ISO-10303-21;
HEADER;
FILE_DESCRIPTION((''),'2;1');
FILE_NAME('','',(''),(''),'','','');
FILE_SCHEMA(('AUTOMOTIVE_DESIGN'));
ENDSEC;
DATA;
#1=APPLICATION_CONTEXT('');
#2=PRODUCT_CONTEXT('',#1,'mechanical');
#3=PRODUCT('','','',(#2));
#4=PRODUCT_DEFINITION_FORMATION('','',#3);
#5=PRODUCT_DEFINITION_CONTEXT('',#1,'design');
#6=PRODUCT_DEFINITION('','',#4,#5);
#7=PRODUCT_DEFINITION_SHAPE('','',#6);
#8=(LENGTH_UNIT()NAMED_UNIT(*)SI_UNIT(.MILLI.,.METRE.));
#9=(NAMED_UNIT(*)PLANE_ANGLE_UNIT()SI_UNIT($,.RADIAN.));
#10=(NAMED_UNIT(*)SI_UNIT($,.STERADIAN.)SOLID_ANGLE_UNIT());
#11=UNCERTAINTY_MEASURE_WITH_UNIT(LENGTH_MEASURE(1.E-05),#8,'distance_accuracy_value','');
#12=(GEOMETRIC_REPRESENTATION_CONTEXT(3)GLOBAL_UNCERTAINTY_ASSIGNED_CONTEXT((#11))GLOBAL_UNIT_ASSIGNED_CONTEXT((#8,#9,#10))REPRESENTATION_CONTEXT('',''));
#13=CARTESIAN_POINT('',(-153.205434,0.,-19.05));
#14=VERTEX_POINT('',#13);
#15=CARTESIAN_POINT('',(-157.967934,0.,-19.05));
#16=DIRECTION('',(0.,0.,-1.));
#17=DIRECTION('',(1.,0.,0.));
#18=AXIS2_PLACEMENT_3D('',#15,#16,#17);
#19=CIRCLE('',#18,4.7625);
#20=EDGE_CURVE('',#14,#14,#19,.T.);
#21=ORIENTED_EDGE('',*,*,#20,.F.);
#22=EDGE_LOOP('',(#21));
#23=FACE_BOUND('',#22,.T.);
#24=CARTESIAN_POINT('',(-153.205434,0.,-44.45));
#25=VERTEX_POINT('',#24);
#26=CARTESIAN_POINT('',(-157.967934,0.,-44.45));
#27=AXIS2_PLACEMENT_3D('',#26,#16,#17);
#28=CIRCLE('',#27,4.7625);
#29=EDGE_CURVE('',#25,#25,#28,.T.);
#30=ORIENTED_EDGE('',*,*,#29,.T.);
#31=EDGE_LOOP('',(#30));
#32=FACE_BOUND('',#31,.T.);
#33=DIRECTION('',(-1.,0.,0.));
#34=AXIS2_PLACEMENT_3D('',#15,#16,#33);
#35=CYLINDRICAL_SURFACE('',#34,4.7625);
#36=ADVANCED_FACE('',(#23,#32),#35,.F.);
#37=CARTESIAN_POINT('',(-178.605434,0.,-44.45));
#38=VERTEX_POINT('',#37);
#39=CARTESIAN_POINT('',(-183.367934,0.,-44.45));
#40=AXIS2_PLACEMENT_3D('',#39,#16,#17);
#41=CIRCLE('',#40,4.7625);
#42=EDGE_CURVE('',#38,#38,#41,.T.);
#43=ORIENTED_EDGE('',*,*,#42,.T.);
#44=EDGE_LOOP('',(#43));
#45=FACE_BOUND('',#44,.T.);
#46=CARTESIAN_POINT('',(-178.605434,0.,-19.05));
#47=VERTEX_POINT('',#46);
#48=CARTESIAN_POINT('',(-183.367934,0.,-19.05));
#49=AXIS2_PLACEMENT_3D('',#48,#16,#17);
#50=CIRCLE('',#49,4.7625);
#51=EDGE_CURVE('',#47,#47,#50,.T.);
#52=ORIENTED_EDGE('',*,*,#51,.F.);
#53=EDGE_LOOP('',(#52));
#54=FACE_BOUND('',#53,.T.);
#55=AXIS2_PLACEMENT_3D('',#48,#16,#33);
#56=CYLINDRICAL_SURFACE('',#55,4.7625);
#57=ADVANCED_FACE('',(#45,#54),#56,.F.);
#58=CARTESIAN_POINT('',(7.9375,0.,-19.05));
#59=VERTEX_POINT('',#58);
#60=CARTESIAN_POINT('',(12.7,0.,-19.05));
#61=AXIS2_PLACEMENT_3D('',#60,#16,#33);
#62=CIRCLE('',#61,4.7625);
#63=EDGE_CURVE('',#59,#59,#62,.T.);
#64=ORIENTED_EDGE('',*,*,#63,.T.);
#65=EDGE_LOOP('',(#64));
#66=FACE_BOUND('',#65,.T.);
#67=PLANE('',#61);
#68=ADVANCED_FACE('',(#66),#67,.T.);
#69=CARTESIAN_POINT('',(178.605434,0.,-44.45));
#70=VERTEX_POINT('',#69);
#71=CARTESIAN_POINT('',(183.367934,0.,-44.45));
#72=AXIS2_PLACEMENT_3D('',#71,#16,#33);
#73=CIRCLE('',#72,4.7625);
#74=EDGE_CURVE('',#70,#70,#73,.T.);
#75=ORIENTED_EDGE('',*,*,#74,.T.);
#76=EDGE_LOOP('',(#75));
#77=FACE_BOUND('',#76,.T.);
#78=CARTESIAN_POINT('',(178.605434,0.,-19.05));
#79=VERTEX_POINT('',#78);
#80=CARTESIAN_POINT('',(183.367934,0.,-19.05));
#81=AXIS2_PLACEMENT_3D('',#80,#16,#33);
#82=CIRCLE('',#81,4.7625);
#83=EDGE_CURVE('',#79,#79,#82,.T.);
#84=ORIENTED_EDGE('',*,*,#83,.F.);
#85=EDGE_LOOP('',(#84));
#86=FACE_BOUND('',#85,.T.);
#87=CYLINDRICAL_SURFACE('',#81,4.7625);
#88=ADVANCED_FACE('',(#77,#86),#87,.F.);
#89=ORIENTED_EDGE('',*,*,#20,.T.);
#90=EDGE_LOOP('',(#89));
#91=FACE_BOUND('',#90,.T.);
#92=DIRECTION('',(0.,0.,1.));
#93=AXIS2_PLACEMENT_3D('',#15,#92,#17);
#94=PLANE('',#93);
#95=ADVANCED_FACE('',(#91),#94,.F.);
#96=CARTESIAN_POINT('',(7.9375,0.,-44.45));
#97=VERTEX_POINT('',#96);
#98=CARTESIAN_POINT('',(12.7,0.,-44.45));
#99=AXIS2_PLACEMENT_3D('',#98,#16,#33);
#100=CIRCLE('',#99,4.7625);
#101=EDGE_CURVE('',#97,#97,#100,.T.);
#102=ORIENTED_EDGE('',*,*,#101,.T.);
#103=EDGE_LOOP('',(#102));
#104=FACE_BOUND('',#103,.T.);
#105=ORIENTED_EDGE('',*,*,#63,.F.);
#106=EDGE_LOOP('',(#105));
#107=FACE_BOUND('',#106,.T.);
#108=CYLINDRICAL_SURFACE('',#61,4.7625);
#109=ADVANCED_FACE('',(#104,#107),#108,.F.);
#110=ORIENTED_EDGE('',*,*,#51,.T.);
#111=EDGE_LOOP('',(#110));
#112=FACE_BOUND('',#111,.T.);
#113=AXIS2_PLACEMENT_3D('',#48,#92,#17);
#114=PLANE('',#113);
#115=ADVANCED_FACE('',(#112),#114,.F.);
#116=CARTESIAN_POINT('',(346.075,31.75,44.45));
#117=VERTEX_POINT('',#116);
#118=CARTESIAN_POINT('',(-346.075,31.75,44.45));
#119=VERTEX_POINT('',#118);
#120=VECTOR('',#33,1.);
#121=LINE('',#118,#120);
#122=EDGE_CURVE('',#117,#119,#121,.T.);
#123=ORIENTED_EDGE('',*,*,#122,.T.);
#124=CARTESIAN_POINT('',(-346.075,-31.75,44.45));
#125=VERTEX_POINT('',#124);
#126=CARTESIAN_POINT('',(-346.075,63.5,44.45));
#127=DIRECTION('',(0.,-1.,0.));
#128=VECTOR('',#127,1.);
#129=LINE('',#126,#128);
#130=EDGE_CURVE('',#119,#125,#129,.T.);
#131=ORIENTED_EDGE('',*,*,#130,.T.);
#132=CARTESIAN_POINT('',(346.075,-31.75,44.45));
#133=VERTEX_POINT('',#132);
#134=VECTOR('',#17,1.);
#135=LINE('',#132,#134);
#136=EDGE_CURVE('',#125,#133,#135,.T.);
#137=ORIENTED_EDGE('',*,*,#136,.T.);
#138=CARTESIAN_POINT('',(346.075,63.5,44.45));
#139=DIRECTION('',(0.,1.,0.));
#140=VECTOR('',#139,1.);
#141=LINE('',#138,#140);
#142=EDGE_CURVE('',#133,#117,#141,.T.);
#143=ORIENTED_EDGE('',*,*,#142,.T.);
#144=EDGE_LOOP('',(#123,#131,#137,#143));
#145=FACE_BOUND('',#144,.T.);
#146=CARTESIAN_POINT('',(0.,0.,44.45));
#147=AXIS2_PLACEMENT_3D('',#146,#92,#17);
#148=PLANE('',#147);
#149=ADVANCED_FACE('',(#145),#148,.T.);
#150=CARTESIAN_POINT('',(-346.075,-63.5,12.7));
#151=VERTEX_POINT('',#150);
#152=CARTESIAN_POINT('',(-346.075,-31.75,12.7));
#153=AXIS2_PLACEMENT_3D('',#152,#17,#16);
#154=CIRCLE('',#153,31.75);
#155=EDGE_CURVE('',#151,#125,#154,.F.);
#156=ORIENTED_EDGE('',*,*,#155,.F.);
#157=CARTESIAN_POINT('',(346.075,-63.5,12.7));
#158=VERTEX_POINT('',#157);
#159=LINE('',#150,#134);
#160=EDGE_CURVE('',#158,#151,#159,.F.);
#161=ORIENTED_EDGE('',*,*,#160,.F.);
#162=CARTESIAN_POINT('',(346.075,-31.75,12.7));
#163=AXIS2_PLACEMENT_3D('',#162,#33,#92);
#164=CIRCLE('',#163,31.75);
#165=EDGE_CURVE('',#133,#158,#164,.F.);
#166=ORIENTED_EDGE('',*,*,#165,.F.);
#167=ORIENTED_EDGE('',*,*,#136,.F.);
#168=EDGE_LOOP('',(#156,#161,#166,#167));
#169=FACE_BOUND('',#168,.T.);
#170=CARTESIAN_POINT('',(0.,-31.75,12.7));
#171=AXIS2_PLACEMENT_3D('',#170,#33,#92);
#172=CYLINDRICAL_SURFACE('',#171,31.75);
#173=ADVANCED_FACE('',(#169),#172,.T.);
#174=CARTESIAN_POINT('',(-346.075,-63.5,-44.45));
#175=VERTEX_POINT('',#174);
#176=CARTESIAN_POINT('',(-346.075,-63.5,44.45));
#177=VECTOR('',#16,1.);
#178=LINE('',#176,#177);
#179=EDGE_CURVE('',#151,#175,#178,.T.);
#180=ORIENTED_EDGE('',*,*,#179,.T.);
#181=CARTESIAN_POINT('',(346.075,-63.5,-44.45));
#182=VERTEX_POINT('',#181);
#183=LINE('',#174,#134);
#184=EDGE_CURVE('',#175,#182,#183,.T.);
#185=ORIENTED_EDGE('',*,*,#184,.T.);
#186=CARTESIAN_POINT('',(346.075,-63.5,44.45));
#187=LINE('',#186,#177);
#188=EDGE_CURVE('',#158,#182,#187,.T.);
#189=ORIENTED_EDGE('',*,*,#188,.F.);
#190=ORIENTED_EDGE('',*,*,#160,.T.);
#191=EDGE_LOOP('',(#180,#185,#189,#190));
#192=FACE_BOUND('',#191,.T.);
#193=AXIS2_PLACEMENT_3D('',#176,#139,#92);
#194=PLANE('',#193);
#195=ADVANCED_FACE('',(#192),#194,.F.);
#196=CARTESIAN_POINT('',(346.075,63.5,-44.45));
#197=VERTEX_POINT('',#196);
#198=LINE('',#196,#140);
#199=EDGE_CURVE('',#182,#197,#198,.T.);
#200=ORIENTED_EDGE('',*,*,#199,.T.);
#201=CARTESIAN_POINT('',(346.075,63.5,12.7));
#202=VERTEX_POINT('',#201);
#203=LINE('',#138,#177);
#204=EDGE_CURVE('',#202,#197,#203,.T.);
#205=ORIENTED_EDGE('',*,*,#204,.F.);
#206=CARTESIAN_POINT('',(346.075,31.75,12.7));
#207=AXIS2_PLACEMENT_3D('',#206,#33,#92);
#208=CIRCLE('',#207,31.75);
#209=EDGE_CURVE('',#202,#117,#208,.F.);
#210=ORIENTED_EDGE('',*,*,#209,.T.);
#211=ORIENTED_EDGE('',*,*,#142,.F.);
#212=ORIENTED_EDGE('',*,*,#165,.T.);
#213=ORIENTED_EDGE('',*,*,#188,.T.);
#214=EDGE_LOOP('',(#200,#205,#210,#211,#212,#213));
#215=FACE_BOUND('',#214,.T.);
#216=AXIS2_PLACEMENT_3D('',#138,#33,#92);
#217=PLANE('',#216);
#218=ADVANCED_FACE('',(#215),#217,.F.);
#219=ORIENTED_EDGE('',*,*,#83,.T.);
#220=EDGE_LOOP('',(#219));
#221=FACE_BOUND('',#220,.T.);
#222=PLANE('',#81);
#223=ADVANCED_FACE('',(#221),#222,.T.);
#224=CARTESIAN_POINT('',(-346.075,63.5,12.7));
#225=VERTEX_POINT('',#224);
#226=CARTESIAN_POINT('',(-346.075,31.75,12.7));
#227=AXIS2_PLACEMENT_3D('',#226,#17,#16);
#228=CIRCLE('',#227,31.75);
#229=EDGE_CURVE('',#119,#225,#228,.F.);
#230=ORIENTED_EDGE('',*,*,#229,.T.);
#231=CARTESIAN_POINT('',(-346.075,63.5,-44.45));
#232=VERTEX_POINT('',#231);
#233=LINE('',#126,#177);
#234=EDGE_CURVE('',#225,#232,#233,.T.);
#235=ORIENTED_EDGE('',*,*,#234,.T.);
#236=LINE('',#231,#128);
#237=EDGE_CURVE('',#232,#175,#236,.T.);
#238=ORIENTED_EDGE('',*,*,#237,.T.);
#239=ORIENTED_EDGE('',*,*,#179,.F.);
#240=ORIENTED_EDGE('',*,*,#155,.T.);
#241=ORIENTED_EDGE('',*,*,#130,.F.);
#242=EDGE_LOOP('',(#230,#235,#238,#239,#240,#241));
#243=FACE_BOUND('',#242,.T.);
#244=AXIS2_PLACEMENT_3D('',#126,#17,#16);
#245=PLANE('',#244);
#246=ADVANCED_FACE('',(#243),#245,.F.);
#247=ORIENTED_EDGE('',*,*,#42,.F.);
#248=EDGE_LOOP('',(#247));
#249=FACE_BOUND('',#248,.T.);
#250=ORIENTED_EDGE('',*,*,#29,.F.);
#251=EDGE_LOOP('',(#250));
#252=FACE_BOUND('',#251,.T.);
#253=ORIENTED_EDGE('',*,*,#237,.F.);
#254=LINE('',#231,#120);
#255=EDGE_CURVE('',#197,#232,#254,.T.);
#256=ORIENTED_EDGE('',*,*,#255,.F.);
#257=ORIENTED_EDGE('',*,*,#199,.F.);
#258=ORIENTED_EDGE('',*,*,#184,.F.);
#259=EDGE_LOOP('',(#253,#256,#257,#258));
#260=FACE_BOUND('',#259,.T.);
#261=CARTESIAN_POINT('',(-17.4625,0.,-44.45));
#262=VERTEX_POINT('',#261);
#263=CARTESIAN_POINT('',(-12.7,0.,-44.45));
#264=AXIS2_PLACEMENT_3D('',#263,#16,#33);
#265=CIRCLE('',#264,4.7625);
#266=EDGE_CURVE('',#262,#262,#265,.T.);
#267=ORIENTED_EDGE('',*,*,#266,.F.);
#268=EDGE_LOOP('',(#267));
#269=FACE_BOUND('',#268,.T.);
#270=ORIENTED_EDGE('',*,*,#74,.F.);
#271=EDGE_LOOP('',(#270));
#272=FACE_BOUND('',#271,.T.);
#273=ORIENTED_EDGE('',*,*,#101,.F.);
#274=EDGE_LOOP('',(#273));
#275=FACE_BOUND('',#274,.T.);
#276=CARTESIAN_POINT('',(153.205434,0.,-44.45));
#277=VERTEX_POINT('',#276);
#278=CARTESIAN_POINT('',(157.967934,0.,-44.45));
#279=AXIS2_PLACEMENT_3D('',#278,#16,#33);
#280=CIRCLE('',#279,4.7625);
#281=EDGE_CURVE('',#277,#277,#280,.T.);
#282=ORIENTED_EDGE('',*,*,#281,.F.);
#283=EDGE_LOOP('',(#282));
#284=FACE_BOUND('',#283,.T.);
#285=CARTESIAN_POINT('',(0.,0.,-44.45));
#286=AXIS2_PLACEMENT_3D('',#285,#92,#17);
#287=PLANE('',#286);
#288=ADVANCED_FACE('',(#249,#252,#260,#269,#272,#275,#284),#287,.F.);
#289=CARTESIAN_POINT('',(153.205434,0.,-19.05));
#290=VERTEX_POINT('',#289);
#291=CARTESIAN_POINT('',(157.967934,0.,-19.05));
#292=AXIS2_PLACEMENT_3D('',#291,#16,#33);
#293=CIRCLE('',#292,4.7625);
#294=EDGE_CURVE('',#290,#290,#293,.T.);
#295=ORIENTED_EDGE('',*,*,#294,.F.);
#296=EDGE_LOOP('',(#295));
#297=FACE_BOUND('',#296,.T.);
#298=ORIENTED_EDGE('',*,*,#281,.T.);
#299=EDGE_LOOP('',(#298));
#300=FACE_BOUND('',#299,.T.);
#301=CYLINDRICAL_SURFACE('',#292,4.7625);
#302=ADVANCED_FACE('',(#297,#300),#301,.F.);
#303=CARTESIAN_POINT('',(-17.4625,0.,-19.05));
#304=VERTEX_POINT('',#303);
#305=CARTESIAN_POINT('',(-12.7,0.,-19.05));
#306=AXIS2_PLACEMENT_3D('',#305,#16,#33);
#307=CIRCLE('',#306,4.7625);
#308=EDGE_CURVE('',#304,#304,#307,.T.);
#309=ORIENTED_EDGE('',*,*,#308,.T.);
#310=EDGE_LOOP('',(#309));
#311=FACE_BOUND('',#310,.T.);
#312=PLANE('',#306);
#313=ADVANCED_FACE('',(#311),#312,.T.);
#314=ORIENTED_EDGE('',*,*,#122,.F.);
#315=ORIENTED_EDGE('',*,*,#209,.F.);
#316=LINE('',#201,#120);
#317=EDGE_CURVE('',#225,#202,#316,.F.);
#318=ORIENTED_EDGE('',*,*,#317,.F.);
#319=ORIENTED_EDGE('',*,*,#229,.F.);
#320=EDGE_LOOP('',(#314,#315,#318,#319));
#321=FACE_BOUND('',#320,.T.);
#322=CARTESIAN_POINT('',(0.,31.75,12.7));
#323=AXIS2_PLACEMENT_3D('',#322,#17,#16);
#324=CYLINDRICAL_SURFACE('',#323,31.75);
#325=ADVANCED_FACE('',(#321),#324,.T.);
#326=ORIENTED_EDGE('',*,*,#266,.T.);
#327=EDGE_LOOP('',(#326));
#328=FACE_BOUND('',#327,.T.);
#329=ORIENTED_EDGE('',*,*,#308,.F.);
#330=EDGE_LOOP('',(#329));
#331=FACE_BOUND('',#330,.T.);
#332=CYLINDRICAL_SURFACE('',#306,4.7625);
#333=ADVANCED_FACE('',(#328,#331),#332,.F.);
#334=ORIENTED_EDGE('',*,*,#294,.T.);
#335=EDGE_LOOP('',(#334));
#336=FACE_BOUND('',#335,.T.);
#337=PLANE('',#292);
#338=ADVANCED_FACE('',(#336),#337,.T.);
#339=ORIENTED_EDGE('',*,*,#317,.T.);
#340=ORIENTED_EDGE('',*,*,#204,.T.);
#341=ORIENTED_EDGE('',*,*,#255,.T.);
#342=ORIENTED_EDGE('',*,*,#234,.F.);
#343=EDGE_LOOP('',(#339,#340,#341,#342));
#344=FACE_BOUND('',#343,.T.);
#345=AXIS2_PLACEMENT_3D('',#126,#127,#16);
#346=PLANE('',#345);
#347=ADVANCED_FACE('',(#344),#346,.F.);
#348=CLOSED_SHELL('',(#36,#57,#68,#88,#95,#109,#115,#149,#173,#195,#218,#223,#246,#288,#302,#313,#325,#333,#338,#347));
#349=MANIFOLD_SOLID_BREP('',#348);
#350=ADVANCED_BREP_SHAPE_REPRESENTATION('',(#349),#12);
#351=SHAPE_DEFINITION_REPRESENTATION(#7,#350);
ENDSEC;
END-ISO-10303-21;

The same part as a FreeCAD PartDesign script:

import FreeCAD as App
import Part
import Sketcher
from FreeCAD import Vector
Q = App.Units.Quantity


def edges_at(feature, points):
    """Names of the edges that pass closest to the given points."""
    edges = feature.Shape.Edges
    near = lambda p: min(range(len(edges)), key=lambda i: edges[i].distToShape(Part.Vertex(*p))[0])
    return sorted({f"Edge{near(p) + 1}" for p in points})


def add_polygon(sketch, points):
    """Adds a closed chain of lines whose ends are joined by coincident constraints."""
    first, n = sketch.GeometryCount, len(points)
    for a, b in zip(points, points[1:] + points[:1]):
        sketch.addGeometry(Part.LineSegment(App.Vector(*a, 0), App.Vector(*b, 0)), False)
    for i in range(n):
        sketch.addConstraint(Sketcher.Constraint("Coincident", first + i, 2, first + (i + 1) % n, 1))

doc = App.newDocument("Part")
body = doc.addObject("PartDesign::Body", "Body")

sketch1 = body.newObject("Sketcher::SketchObject", "Sketch")
sketch1.AttachmentSupport = (doc.getObject("XY_Plane"), [""])
sketch1.MapMode = "FlatFace"
add_polygon(sketch1, [(-346, 64), (-346, -64), (346, -64), (346, 64)])
sketch1.addConstraint([
    Sketcher.Constraint("Vertical", 0),
    Sketcher.Constraint("Horizontal", 1),
    Sketcher.Constraint("Vertical", 2),
    Sketcher.Constraint("Horizontal", 3),
    Sketcher.Constraint("Symmetric", 0, 2, 2, 2, -1, 1),
    Sketcher.Constraint("DistanceY", 0, 2, 0, 1, Q("5 in")),
    Sketcher.Constraint("DistanceX", 1, 1, 1, 2, Q("27.25 in")),
])
pad1 = body.newObject("PartDesign::Pad", "Pad")
pad1.Profile = sketch1
pad1.Length = Q("3.5 in")
pad1.Midplane = True
doc.recompute()

fillet = body.newObject("PartDesign::Fillet", "Fillet")
fillet.Base = (pad1, edges_at(pad1, [(0, -63.5, 44.45), (0, 63.5, 44.45)]))
fillet.Radius = Q("1.25 in")

sketch2 = body.newObject("Sketcher::SketchObject", "Sketch001")
sketch2.AttachmentSupport = (doc.getObject("XY_Plane"), [""])
sketch2.MapMode = "FlatFace"
sketch2.AttachmentOffset = App.Placement(Vector(0, 0, -1.75 * 25.4), App.Rotation())
sketch2.addGeometry([
    Part.Circle(Vector(-158, 0, 0), Vector(0, 0, 1), 4.8),
    Part.Circle(Vector(-183.4, 0, 0), Vector(0, 0, 1), 4.8),
    Part.Circle(Vector(-12.7, 0, 0), Vector(0, 0, 1), 4.8),
    Part.Circle(Vector(12.7, 0, 0), Vector(0, 0, 1), 4.8),
    Part.Circle(Vector(158, 0, 0), Vector(0, 0, 1), 4.8),
    Part.Circle(Vector(183.4, 0, 0), Vector(0, 0, 1), 4.8),
], False)
sketch2.addConstraint([
    Sketcher.Constraint("Equal", 0, 1),
    Sketcher.Constraint("Equal", 1, 2),
    Sketcher.Constraint("Equal", 2, 3),
    Sketcher.Constraint("Equal", 3, 4),
    Sketcher.Constraint("Equal", 4, 5),
    Sketcher.Constraint("Symmetric", 2, 3, 3, 3, -1, 1),
    Sketcher.Constraint("Symmetric", 0, 3, 4, 3, -1, 1),
    Sketcher.Constraint("Symmetric", 1, 3, 5, 3, -1, 1),
    Sketcher.Constraint("PointOnObject", 0, 3, -1),
    Sketcher.Constraint("PointOnObject", 1, 3, -1),
    Sketcher.Constraint("PointOnObject", 2, 3, -1),
    Sketcher.Constraint("Diameter", 0, Q("0.375 in")),
    Sketcher.Constraint("DistanceX", 1, 3, 0, 3, Q("1 in")),
    Sketcher.Constraint("DistanceX", 2, 3, 3, 3, Q("1 in")),
    Sketcher.Constraint("DistanceX", 0, 3, -1, 1, 157.967934),
])
pocket1 = body.newObject("PartDesign::Pocket", "Pocket")
pocket1.Profile = sketch2
pocket1.Length = Q("1 in")
pocket1.Reversed = True

doc.recompute()
